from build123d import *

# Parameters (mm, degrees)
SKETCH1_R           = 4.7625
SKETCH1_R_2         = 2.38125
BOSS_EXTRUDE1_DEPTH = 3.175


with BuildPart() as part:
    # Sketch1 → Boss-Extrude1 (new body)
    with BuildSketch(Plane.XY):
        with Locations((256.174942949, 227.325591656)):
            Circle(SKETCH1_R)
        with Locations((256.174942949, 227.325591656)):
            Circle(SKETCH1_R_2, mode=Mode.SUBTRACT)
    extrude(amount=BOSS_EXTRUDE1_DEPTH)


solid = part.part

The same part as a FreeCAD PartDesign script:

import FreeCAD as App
import Part
import Sketcher
from FreeCAD import Vector
Q = App.Units.Quantity

doc = App.newDocument("Part")
params = doc.addObject("Spreadsheet::Sheet", "Params")
for row, (alias, value) in enumerate([
    ("sketch1_diameter", "0.375 in"),
    ("sketch1_diameter2", "0.1875 in"),
    ("pad1_length", "0.125 in"),
], start=1):
    params.set(f"A{row}", alias)
    params.set(f"B{row}", "=" + value)
    params.setAlias(f"B{row}", alias)

body = doc.addObject("PartDesign::Body", "Body")

# Sketch on XY plane
sketch1 = body.newObject("Sketcher::SketchObject", "Sketch")
sketch1.AttachmentSupport = (doc.getObject("XY_Plane"), [""])
sketch1.MapMode = "FlatFace"
sketch1.addGeometry(Part.Circle(Vector(256.2, 227.3, 0), Vector(0, 0, 1), 4.8), False)
sketch1.addGeometry(Part.Circle(Vector(256.2, 227.3, 0), Vector(0, 0, 1), 2.4), False)
sketch1.addConstraint(Sketcher.Constraint("Coincident", 1, 3, 0, 3))
sketch1.addConstraint(Sketcher.Constraint("Diameter", 0, Q("0.375 in")))
sketch1.addConstraint(Sketcher.Constraint("Diameter", 1, Q("0.1875 in")))
sketch1.addConstraint(Sketcher.Constraint("DistanceY", -1, 1, 0, 3, Q("227.325592 mm")))
sketch1.addConstraint(Sketcher.Constraint("DistanceX", -1, 1, 0, 3, Q("256.174943 mm")))
sketch1.setExpression("Constraints[1]", "Params.sketch1_diameter")
sketch1.setExpression("Constraints[2]", "Params.sketch1_diameter2")
pad1 = body.newObject("PartDesign::Pad", "Pad")
pad1.Profile = sketch1
pad1.setExpression("Length", "Params.pad1_length")

doc.recompute()
